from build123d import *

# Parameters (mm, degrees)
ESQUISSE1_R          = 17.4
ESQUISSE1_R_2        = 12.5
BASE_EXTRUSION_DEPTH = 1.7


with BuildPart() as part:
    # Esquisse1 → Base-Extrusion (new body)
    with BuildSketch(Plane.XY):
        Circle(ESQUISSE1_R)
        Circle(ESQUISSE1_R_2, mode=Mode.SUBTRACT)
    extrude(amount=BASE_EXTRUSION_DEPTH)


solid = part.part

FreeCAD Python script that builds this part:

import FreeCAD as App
import Part
import Sketcher

V = App.Vector

doc = App.newDocument("Part")
body = doc.addObject("PartDesign::Body", "Body")

# Sketch on XY plane
sketch1 = body.newObject("Sketcher::SketchObject", "Sketch")
sketch1.AttachmentSupport = (doc.getObject("XY_Plane"), [""])
sketch1.MapMode = "FlatFace"
sketch1.addGeometry(Part.Circle(V(0, 0, 0), V(0, 0, 1), 17), False)
sketch1.addGeometry(Part.Circle(V(0, 0, 0), V(0, 0, 1), 12), False)
sketch1.addConstraint(Sketcher.Constraint("Coincident", 0, 3, -1, 1))
sketch1.addConstraint(Sketcher.Constraint("Coincident", 1, 3, -1, 1))
sketch1.addConstraint(Sketcher.Constraint("Diameter", 1, 25.0))
sketch1.addConstraint(Sketcher.Constraint("Diameter", 0, 34.8))
pad1 = body.newObject("PartDesign::Pad", "Pad")
pad1.Profile = sketch1
pad1.Length = 1.7

doc.recompute()
